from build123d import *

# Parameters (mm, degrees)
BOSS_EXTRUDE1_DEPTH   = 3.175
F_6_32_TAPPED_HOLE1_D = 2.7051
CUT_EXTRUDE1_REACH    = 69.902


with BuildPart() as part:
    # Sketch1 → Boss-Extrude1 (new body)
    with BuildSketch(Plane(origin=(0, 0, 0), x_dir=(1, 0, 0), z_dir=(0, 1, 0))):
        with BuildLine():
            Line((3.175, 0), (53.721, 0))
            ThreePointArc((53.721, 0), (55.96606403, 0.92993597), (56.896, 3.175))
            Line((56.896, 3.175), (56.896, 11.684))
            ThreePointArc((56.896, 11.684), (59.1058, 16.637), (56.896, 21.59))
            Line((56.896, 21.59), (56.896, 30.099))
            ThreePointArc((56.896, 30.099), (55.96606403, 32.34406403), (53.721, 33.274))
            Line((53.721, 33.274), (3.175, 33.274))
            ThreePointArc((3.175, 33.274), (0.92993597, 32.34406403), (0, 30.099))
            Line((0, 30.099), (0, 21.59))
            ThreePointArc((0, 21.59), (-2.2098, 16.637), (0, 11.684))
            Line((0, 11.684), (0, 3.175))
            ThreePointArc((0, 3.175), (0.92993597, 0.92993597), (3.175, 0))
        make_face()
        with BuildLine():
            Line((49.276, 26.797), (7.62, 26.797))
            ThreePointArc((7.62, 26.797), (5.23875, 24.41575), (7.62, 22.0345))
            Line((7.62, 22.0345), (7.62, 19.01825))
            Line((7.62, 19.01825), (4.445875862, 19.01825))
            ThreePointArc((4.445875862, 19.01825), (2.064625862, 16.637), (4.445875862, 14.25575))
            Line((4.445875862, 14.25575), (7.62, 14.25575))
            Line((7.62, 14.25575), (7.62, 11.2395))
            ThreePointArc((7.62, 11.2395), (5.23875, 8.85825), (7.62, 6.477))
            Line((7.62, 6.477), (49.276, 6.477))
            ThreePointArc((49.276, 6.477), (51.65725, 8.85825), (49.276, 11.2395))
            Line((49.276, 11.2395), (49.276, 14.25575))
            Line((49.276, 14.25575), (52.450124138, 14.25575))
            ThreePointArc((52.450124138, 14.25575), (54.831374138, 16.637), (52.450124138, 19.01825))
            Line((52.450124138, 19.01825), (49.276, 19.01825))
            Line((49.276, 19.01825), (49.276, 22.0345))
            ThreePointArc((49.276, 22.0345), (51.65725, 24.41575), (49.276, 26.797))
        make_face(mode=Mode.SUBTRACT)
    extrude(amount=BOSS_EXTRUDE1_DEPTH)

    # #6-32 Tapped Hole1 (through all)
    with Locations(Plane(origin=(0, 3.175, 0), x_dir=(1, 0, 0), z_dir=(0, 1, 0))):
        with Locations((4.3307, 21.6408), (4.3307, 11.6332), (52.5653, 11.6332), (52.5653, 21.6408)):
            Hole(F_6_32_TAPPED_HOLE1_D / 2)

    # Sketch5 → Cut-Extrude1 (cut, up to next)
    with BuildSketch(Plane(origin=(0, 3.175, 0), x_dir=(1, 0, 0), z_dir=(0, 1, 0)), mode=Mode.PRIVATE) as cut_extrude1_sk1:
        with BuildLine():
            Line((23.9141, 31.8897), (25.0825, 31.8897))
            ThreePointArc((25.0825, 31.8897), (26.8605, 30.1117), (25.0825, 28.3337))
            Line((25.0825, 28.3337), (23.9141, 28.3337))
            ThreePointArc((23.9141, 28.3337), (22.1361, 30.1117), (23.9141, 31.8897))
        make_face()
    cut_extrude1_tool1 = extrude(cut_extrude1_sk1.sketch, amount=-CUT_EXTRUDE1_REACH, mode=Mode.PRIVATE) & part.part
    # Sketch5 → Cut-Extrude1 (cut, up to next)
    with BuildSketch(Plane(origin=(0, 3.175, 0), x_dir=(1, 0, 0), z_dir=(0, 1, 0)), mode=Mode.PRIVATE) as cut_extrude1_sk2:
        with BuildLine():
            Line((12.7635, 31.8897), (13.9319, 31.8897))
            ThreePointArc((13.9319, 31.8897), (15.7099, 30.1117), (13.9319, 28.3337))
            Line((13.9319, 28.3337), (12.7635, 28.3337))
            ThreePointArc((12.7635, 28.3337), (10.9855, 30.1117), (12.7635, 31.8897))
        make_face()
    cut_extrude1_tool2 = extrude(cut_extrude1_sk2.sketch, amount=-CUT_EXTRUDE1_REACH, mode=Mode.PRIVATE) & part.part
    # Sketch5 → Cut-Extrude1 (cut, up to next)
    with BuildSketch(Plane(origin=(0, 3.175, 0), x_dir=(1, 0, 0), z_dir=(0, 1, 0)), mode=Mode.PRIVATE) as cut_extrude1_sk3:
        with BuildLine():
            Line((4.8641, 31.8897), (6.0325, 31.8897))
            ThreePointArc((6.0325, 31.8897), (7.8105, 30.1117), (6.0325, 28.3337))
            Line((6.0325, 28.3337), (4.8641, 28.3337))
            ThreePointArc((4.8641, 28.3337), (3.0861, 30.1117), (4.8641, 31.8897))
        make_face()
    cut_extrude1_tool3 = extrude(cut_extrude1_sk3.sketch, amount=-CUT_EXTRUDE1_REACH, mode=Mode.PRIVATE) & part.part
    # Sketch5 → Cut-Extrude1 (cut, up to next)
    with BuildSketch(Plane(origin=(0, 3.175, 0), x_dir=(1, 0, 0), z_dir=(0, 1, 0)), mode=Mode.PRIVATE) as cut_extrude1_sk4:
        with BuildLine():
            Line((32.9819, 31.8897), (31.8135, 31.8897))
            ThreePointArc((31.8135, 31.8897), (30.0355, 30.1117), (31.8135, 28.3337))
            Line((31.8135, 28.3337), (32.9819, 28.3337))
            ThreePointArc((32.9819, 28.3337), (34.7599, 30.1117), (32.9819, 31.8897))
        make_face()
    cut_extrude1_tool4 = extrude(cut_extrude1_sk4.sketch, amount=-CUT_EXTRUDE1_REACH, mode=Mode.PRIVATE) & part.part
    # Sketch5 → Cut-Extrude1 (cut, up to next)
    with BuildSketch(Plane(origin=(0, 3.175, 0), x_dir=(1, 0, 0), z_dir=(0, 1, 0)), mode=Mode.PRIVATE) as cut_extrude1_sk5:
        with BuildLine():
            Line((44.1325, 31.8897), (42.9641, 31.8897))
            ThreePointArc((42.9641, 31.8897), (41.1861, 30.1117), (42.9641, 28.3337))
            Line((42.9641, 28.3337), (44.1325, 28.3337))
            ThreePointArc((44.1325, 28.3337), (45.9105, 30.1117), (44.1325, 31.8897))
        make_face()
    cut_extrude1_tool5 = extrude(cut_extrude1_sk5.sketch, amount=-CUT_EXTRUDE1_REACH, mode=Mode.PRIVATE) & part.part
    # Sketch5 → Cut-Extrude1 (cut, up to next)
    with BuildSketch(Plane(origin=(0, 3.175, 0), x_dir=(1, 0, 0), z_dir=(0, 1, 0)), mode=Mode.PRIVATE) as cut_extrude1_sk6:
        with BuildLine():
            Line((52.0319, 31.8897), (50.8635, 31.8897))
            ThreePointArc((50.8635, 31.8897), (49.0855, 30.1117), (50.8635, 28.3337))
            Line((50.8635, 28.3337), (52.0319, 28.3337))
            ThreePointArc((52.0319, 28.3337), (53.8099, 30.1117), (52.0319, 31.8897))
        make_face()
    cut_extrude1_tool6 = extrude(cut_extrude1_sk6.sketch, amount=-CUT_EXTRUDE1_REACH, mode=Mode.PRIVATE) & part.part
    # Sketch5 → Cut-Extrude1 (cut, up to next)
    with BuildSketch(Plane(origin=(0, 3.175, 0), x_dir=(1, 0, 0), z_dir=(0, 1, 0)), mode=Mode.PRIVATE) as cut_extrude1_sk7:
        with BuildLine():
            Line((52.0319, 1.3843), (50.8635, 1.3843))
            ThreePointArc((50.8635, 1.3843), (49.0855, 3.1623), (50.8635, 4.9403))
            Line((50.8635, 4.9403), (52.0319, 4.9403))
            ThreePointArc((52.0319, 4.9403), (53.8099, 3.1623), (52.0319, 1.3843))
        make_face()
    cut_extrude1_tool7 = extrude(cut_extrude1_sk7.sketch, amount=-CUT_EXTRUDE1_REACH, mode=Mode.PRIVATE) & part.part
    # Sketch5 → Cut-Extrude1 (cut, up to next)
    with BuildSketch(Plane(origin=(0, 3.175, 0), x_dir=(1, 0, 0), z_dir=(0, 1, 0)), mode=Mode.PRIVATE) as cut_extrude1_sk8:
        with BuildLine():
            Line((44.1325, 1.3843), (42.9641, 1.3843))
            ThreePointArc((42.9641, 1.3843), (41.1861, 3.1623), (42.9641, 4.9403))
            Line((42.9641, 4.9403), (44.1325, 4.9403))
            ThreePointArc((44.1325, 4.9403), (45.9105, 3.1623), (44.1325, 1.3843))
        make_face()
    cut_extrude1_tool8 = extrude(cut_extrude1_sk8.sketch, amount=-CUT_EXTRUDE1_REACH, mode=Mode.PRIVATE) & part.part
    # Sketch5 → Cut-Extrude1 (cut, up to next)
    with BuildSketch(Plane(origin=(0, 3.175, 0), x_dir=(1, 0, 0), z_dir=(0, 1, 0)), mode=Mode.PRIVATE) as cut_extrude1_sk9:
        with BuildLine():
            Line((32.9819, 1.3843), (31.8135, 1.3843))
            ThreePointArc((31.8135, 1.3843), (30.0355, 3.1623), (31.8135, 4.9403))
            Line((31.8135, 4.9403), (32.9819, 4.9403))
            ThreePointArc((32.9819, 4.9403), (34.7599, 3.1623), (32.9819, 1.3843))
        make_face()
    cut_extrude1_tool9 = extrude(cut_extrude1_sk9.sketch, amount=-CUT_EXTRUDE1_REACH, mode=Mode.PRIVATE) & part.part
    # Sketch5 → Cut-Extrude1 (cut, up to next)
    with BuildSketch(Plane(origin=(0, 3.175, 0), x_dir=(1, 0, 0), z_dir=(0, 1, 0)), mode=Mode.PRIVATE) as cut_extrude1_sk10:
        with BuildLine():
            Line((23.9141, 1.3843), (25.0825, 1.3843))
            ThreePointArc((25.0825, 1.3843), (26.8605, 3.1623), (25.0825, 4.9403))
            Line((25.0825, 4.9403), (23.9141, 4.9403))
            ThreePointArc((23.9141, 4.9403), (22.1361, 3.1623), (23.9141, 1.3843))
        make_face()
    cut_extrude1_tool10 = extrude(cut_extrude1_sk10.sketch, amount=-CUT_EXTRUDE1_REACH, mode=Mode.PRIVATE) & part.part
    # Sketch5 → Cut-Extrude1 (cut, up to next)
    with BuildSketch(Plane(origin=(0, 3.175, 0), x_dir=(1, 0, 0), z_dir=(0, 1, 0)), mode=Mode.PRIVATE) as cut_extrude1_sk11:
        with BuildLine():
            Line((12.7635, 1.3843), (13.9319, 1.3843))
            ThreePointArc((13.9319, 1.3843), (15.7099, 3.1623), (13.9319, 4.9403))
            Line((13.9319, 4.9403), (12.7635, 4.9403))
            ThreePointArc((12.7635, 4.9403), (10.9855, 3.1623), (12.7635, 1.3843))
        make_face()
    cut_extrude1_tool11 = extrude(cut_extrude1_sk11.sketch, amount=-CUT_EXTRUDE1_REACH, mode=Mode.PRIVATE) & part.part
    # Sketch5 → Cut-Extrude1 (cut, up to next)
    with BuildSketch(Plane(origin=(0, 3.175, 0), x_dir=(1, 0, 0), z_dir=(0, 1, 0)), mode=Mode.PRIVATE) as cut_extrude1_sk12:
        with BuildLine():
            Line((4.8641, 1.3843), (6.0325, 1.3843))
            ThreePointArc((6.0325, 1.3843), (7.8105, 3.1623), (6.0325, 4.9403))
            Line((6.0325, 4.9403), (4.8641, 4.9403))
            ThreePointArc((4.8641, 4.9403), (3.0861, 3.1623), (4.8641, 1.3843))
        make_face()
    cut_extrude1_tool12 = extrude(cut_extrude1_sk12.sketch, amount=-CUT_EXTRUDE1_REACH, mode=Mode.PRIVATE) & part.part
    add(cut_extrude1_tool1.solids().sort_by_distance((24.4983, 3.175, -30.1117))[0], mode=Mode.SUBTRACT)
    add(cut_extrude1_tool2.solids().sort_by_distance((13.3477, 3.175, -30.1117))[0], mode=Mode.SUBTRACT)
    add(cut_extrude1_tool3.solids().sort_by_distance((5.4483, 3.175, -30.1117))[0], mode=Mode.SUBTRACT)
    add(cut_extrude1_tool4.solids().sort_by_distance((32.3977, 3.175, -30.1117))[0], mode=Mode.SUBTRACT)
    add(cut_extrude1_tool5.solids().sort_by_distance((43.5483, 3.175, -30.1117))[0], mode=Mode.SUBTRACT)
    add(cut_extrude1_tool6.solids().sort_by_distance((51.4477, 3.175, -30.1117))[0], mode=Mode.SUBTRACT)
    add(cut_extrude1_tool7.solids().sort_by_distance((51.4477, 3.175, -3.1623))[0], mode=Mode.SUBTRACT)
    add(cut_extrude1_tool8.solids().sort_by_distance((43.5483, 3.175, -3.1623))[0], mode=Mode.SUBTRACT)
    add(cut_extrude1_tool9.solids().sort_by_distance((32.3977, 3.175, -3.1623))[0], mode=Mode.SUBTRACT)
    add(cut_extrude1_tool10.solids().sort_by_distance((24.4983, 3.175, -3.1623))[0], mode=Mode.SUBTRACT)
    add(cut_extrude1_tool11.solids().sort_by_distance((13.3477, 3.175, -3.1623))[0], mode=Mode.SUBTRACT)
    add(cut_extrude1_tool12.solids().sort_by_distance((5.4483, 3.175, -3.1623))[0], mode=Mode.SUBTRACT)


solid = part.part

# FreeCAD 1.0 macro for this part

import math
import FreeCAD as App
import Part
import Sketcher
from FreeCAD import Vector
Q = App.Units.Quantity

doc = App.newDocument("Part")
body = doc.addObject("PartDesign::Body", "Body")

# Sketch on XZ plane
sketch1 = body.newObject("Sketcher::SketchObject", "Sketch")
sketch1.AttachmentSupport = (doc.getObject("XZ_Plane"), [""])
sketch1.MapMode = "FlatFace"
sketch1.addGeometry(Part.LineSegment(Vector(3.2, 0, 0), Vector(53.7, 0, 0)), False)
sketch1.addGeometry(Part.ArcOfCircle(Part.Circle(Vector(53.7, -3.2, 0), Vector(0, 0, 1), 3.2), math.radians(0), math.radians(90)), False)
sketch1.addGeometry(Part.LineSegment(Vector(56.9, -3.2, 0), Vector(56.9, -11.7, 0)), False)
sketch1.addGeometry(Part.ArcOfCircle(Part.Circle(Vector(52.5, -16.6, 0), Vector(0, 0, 1), 6.7), math.radians(-48), math.radians(48)), False)
sketch1.addGeometry(Part.LineSegment(Vector(56.9, -21.6, 0), Vector(56.9, -30.1, 0)), False)
sketch1.addGeometry(Part.ArcOfCircle(Part.Circle(Vector(53.7, -30.1, 0), Vector(0, 0, 1), 3.2), math.radians(-90), math.radians(0)), False)
sketch1.addGeometry(Part.LineSegment(Vector(53.7, -33.3, 0), Vector(3.2, -33.3, 0)), False)
sketch1.addGeometry(Part.ArcOfCircle(Part.Circle(Vector(3.2, -30.1, 0), Vector(0, 0, 1), 3.2), math.radians(-180), math.radians(-90)), False)
sketch1.addGeometry(Part.LineSegment(Vector(0, -30.1, 0), Vector(0, -21.6, 0)), False)
sketch1.addGeometry(Part.ArcOfCircle(Part.Circle(Vector(4.4, -16.6, 0), Vector(0, 0, 1), 6.7), math.radians(132), math.radians(228)), False)
sketch1.addGeometry(Part.LineSegment(Vector(0, -11.7, 0), Vector(0, -3.2, 0)), False)
sketch1.addGeometry(Part.ArcOfCircle(Part.Circle(Vector(3.2, -3.2, 0), Vector(0, 0, 1), 3.2), math.radians(90), math.radians(180)), False)
sketch1.addGeometry(Part.LineSegment(Vector(7.6, -26.8, 0), Vector(49.3, -26.8, 0)), False)
sketch1.addGeometry(Part.ArcOfCircle(Part.Circle(Vector(49.3, -24.4, 0), Vector(0, 0, 1), 2.4), math.radians(-90), math.radians(90)), False)
sketch1.addGeometry(Part.LineSegment(Vector(49.3, -22, 0), Vector(49.3, -19, 0)), False)
sketch1.addGeometry(Part.LineSegment(Vector(49.3, -19, 0), Vector(52.5, -19, 0)), False)
sketch1.addGeometry(Part.ArcOfCircle(Part.Circle(Vector(52.5, -16.6, 0), Vector(0, 0, 1), 2.4), math.radians(-90), math.radians(90)), False)
sketch1.addGeometry(Part.LineSegment(Vector(52.5, -14.3, 0), Vector(49.3, -14.3, 0)), False)
sketch1.addGeometry(Part.LineSegment(Vector(49.3, -14.3, 0), Vector(49.3, -11.2, 0)), False)
sketch1.addGeometry(Part.ArcOfCircle(Part.Circle(Vector(49.3, -8.9, 0), Vector(0, 0, 1), 2.4), math.radians(-90), math.radians(90)), False)
sketch1.addGeometry(Part.LineSegment(Vector(49.3, -6.5, 0), Vector(7.6, -6.5, 0)), False)
sketch1.addGeometry(Part.ArcOfCircle(Part.Circle(Vector(7.6, -8.9, 0), Vector(0, 0, 1), 2.4), math.radians(90), math.radians(270)), False)
sketch1.addGeometry(Part.LineSegment(Vector(7.6, -11.2, 0), Vector(7.6, -14.3, 0)), False)
sketch1.addGeometry(Part.LineSegment(Vector(7.6, -14.3, 0), Vector(4.4, -14.3, 0)), False)
sketch1.addGeometry(Part.ArcOfCircle(Part.Circle(Vector(4.4, -16.6, 0), Vector(0, 0, 1), 2.4), math.radians(90), math.radians(270)), False)
sketch1.addGeometry(Part.LineSegment(Vector(4.4, -19, 0), Vector(7.6, -19, 0)), False)
sketch1.addGeometry(Part.LineSegment(Vector(7.6, -19, 0), Vector(7.6, -22, 0)), False)
sketch1.addGeometry(Part.ArcOfCircle(Part.Circle(Vector(7.6, -24.4, 0), Vector(0, 0, 1), 2.4), math.radians(90), math.radians(270)), False)
sketch1.addConstraint(Sketcher.Constraint("Tangent", 0, 2, 1, 2))
sketch1.addConstraint(Sketcher.Constraint("Tangent", 1, 1, 2, 1))
sketch1.addConstraint(Sketcher.Constraint("Coincident", 2, 2, 3, 2))
sketch1.addConstraint(Sketcher.Constraint("Coincident", 3, 1, 4, 1))
sketch1.addConstraint(Sketcher.Constraint("Tangent", 4, 2, 5, 2))
sketch1.addConstraint(Sketcher.Constraint("Tangent", 5, 1, 6, 1))
sketch1.addConstraint(Sketcher.Constraint("Tangent", 6, 2, 7, 2))
sketch1.addConstraint(Sketcher.Constraint("Tangent", 7, 1, 8, 1))
sketch1.addConstraint(Sketcher.Constraint("Coincident", 8, 2, 9, 2))
sketch1.addConstraint(Sketcher.Constraint("Coincident", 9, 1, 10, 1))
sketch1.addConstraint(Sketcher.Constraint("Tangent", 10, 2, 11, 2))
sketch1.addConstraint(Sketcher.Constraint("Tangent", 11, 1, 0, 1))
sketch1.addConstraint(Sketcher.Constraint("Tangent", 12, 2, 13, 1))
sketch1.addConstraint(Sketcher.Constraint("Coincident", 13, 2, 14, 1))
sketch1.addConstraint(Sketcher.Constraint("Coincident", 14, 2, 15, 1))
sketch1.addConstraint(Sketcher.Constraint("Tangent", 15, 2, 16, 1))
sketch1.addConstraint(Sketcher.Constraint("Tangent", 16, 2, 17, 1))
sketch1.addConstraint(Sketcher.Constraint("Coincident", 17, 2, 18, 1))
sketch1.addConstraint(Sketcher.Constraint("Coincident", 18, 2, 19, 1))
sketch1.addConstraint(Sketcher.Constraint("Tangent", 19, 2, 20, 1))
sketch1.addConstraint(Sketcher.Constraint("Tangent", 20, 2, 21, 1))
sketch1.addConstraint(Sketcher.Constraint("Coincident", 21, 2, 22, 1))
sketch1.addConstraint(Sketcher.Constraint("Coincident", 22, 2, 23, 1))
sketch1.addConstraint(Sketcher.Constraint("Tangent", 23, 2, 24, 1))
sketch1.addConstraint(Sketcher.Constraint("Tangent", 24, 2, 25, 1))
sketch1.addConstraint(Sketcher.Constraint("Coincident", 25, 2, 26, 1))
sketch1.addConstraint(Sketcher.Constraint("Coincident", 26, 2, 27, 1))
sketch1.addConstraint(Sketcher.Constraint("Tangent", 27, 2, 12, 1))
sketch1.addConstraint(Sketcher.Constraint("Horizontal", 0))
sketch1.addConstraint(Sketcher.Constraint("Vertical", 2))
sketch1.addConstraint(Sketcher.Constraint("Vertical", 4))
sketch1.addConstraint(Sketcher.Constraint("Horizontal", 6))
sketch1.addConstraint(Sketcher.Constraint("Vertical", 8))
sketch1.addConstraint(Sketcher.Constraint("Vertical", 10))
sketch1.addConstraint(Sketcher.Constraint("Horizontal", 12))
sketch1.addConstraint(Sketcher.Constraint("Vertical", 14))
sketch1.addConstraint(Sketcher.Constraint("Horizontal", 15))
sketch1.addConstraint(Sketcher.Constraint("Horizontal", 17))
sketch1.addConstraint(Sketcher.Constraint("Vertical", 18))
sketch1.addConstraint(Sketcher.Constraint("Horizontal", 20))
sketch1.addConstraint(Sketcher.Constraint("Vertical", 22))
sketch1.addConstraint(Sketcher.Constraint("Horizontal", 23))
sketch1.addConstraint(Sketcher.Constraint("Horizontal", 25))
sketch1.addConstraint(Sketcher.Constraint("Vertical", 26))
sketch1.addConstraint(Sketcher.Constraint("Coincident", 16, 3, 3, 3))
sketch1.addConstraint(Sketcher.Constraint("Coincident", 24, 3, 9, 3))
sketch1.addConstraint(Sketcher.Constraint("Equal", 1, 5))
sketch1.addConstraint(Sketcher.Constraint("Equal", 5, 7))
sketch1.addConstraint(Sketcher.Constraint("Equal", 3, 9))
sketch1.addConstraint(Sketcher.Constraint("Equal", 7, 11))
sketch1.addConstraint(Sketcher.Constraint("Equal", 13, 16))
sketch1.addConstraint(Sketcher.Constraint("Equal", 16, 19))
sketch1.addConstraint(Sketcher.Constraint("Equal", 19, 21))
sketch1.addConstraint(Sketcher.Constraint("Equal", 21, 24))
sketch1.addConstraint(Sketcher.Constraint("Equal", 24, 27))
sketch1.addConstraint(Sketcher.Constraint("PointOnObject", 0, 2, -1))
sketch1.addConstraint(Sketcher.Constraint("PointOnObject", 7, 1, -2))
sketch1.addConstraint(Sketcher.Constraint("PointOnObject", 9, 1, -2))
sketch1.addConstraint(Sketcher.Constraint("Horizontal", 3, 3, 9, 3))
sketch1.addConstraint(Sketcher.Constraint("Horizontal", 3, 1, 8, 2))
sketch1.addConstraint(Sketcher.Constraint("Horizontal", 2, 2, 9, 1))
sketch1.addConstraint(Sketcher.Constraint("Vertical", 13, 3, 19, 3))
sketch1.addConstraint(Sketcher.Constraint("Vertical", 21, 3, 27, 3))
sketch1.addConstraint(Sketcher.Constraint("Vertical", 12, 2, 13, 2))
sketch1.addConstraint(Sketcher.Constraint("Vertical", 14, 2, 17, 2))
sketch1.addConstraint(Sketcher.Constraint("Vertical", 20, 2, 21, 2))
sketch1.addConstraint(Sketcher.Constraint("Vertical", 22, 2, 25, 2))
sketch1.addConstraint(Sketcher.Constraint("Equal", 17, 23))
sketch1.addConstraint(Sketcher.Constraint("Equal", 2, 4))
sketch1.addConstraint(Sketcher.Constraint("Equal", 14, 18))
sketch1.addConstraint(Sketcher.Constraint("Radius", 1, Q("0.125 in")))
sketch1.addConstraint(Sketcher.Constraint("Radius", 13, Q("0.09375 in")))
sketch1.addConstraint(Sketcher.Constraint("DistanceX", 0, 1, 0, 2, Q("1.99 in")))
sketch1.addConstraint(Sketcher.Constraint("DistanceX", 12, 1, 12, 2, Q("1.64 in")))
sketch1.addConstraint(Sketcher.Constraint("DistanceY", 2, 2, 2, 1, Q("0.335 in")))
sketch1.addConstraint(Sketcher.Constraint("DistanceY", 3, 1, -1, 1, Q("0.85 in")))
sketch1.addConstraint(Sketcher.Constraint("DistanceY", 5, 3, 12, 2, Q("0.13 in")))
sketch1.addConstraint(Sketcher.Constraint("Radius", 3, 6.655676))
pad1 = body.newObject("PartDesign::Pad", "Pad")
pad1.Profile = sketch1
pad1.Length = Q("0.125 in")
pad1.Reversed = True

# Sketch on XZ plane
sketch2 = body.newObject("Sketcher::SketchObject", "Sketch001")
sketch2.AttachmentSupport = (doc.getObject("XZ_Plane"), [""])
sketch2.MapMode = "FlatFace"
sketch2.AttachmentOffset = App.Placement(Vector(0, 0, -0.125 * 25.4), App.Rotation())
sketch2.addGeometry(Part.Circle(Vector(4.3, -21.6, 0), Vector(0, 0, 1), 1.4), False)
sketch2.addGeometry(Part.Circle(Vector(4.3, -11.6, 0), Vector(0, 0, 1), 1.4), False)
sketch2.addGeometry(Part.Circle(Vector(52.6, -11.6, 0), Vector(0, 0, 1), 1.4), False)
sketch2.addGeometry(Part.Circle(Vector(52.6, -21.6, 0), Vector(0, 0, 1), 1.4), False)
sketch2.addConstraint(Sketcher.Constraint("Equal", 0, 1))
sketch2.addConstraint(Sketcher.Constraint("Equal", 1, 2))
sketch2.addConstraint(Sketcher.Constraint("Equal", 2, 3))
sketch2.addConstraint(Sketcher.Constraint("Horizontal", 1, 3, 2, 3))
sketch2.addConstraint(Sketcher.Constraint("Horizontal", 0, 3, 3, 3))
sketch2.addConstraint(Sketcher.Constraint("Vertical", 0, 3, 1, 3))
sketch2.addConstraint(Sketcher.Constraint("Vertical", 2, 3, 3, 3))
sketch2.addConstraint(Sketcher.Constraint("Diameter", 0, Q("0.1065 in")))
sketch2.addConstraint(Sketcher.Constraint("DistanceY", 0, 3, -1, 1, Q("0.852 in")))
sketch2.addConstraint(Sketcher.Constraint("DistanceY", 1, 3, -1, 1, Q("0.458 in")))
sketch2.addConstraint(Sketcher.Constraint("DistanceX", 1, 3, 2, 3, Q("1.899 in")))
sketch2.addConstraint(Sketcher.Constraint("DistanceX", -1, 1, 0, 3, Q("0.1705 in")))
doc.recompute()
hole = body.newObject("PartDesign::Hole", "Hole")
hole.Profile = sketch2
hole.ThreadType = "None"
hole.Diameter = Q("0.1065 in")
hole.DepthType = "ThroughAll"
hole.Reversed = True

# Sketch on XZ plane
sketch3 = body.newObject("Sketcher::SketchObject", "Sketch002")
sketch3.AttachmentSupport = (doc.getObject("XZ_Plane"), [""])
sketch3.MapMode = "FlatFace"
sketch3.AttachmentOffset = App.Placement(Vector(0, 0, -0.125 * 25.4), App.Rotation())
sketch3.addGeometry(Part.LineSegment(Vector(25.1, -31.9, 0), Vector(23.9, -31.9, 0)), False)
sketch3.addGeometry(Part.ArcOfCircle(Part.Circle(Vector(23.9, -30.1, 0), Vector(0, 0, 1), 1.8), math.radians(90), math.radians(270)), False)
sketch3.addGeometry(Part.LineSegment(Vector(23.9, -28.3, 0), Vector(25.1, -28.3, 0)), False)
sketch3.addGeometry(Part.ArcOfCircle(Part.Circle(Vector(25.1, -30.1, 0), Vector(0, 0, 1), 1.8), math.radians(-90), math.radians(90)), False)
sketch3.addConstraint(Sketcher.Constraint("Tangent", 0, 2, 1, 2))
sketch3.addConstraint(Sketcher.Constraint("Tangent", 1, 1, 2, 1))
sketch3.addConstraint(Sketcher.Constraint("Tangent", 2, 2, 3, 2))
sketch3.addConstraint(Sketcher.Constraint("Tangent", 3, 1, 0, 1))
sketch3.addConstraint(Sketcher.Constraint("Horizontal", 0))
sketch3.addConstraint(Sketcher.Constraint("Horizontal", 2))
sketch3.addConstraint(Sketcher.Constraint("Radius", 1, Q("0.07 in")))
sketch3.addConstraint(Sketcher.Constraint("DistanceX", 0, 2, 0, 1, Q("0.046 in")))
sketch3.addConstraint(Sketcher.Constraint("DistanceX", -1, 1, 1, 3, Q("0.9415 in")))
sketch3.addConstraint(Sketcher.Constraint("DistanceY", 1, 3, -1, 1, Q("1.1855 in")))
pocket1 = body.newObject("PartDesign::Pocket", "Pocket")
pocket1.Profile = sketch3
pocket1.Type = "UpToFirst"
pocket1.Reversed = True

# Sketch on XZ plane
sketch4 = body.newObject("Sketcher::SketchObject", "Sketch003")
sketch4.AttachmentSupport = (doc.getObject("XZ_Plane"), [""])
sketch4.MapMode = "FlatFace"
sketch4.AttachmentOffset = App.Placement(Vector(0, 0, -0.125 * 25.4), App.Rotation())
sketch4.addGeometry(Part.LineSegment(Vector(13.9, -31.9, 0), Vector(12.8, -31.9, 0)), False)
sketch4.addGeometry(Part.ArcOfCircle(Part.Circle(Vector(12.8, -30.1, 0), Vector(0, 0, 1), 1.8), math.radians(90), math.radians(270)), False)
sketch4.addGeometry(Part.LineSegment(Vector(12.8, -28.3, 0), Vector(13.9, -28.3, 0)), False)
sketch4.addGeometry(Part.ArcOfCircle(Part.Circle(Vector(13.9, -30.1, 0), Vector(0, 0, 1), 1.8), math.radians(-90), math.radians(90)), False)
sketch4.addConstraint(Sketcher.Constraint("Tangent", 0, 2, 1, 2))
sketch4.addConstraint(Sketcher.Constraint("Tangent", 1, 1, 2, 1))
sketch4.addConstraint(Sketcher.Constraint("Tangent", 2, 2, 3, 2))
sketch4.addConstraint(Sketcher.Constraint("Tangent", 3, 1, 0, 1))
sketch4.addConstraint(Sketcher.Constraint("Horizontal", 0))
sketch4.addConstraint(Sketcher.Constraint("Horizontal", 2))
sketch4.addConstraint(Sketcher.Constraint("Radius", 1, Q("0.07 in")))
sketch4.addConstraint(Sketcher.Constraint("DistanceX", 0, 2, 0, 1, Q("0.046 in")))
sketch4.addConstraint(Sketcher.Constraint("DistanceX", -1, 1, 1, 3, Q("0.5025 in")))
sketch4.addConstraint(Sketcher.Constraint("DistanceY", 1, 3, -1, 1, Q("1.1855 in")))
pocket2 = body.newObject("PartDesign::Pocket", "Pocket001")
pocket2.Profile = sketch4
pocket2.Type = "UpToFirst"
pocket2.Reversed = True

# Sketch on XZ plane
sketch5 = body.newObject("Sketcher::SketchObject", "Sketch004")
sketch5.AttachmentSupport = (doc.getObject("XZ_Plane"), [""])
sketch5.MapMode = "FlatFace"
sketch5.AttachmentOffset = App.Placement(Vector(0, 0, -0.125 * 25.4), App.Rotation())
sketch5.addGeometry(Part.LineSegment(Vector(6, -31.9, 0), Vector(4.9, -31.9, 0)), False)
sketch5.addGeometry(Part.ArcOfCircle(Part.Circle(Vector(4.9, -30.1, 0), Vector(0, 0, 1), 1.8), math.radians(90), math.radians(270)), False)
sketch5.addGeometry(Part.LineSegment(Vector(4.9, -28.3, 0), Vector(6, -28.3, 0)), False)
sketch5.addGeometry(Part.ArcOfCircle(Part.Circle(Vector(6, -30.1, 0), Vector(0, 0, 1), 1.8), math.radians(-90), math.radians(90)), False)
sketch5.addConstraint(Sketcher.Constraint("Tangent", 0, 2, 1, 2))
sketch5.addConstraint(Sketcher.Constraint("Tangent", 1, 1, 2, 1))
sketch5.addConstraint(Sketcher.Constraint("Tangent", 2, 2, 3, 2))
sketch5.addConstraint(Sketcher.Constraint("Tangent", 3, 1, 0, 1))
sketch5.addConstraint(Sketcher.Constraint("Horizontal", 0))
sketch5.addConstraint(Sketcher.Constraint("Horizontal", 2))
sketch5.addConstraint(Sketcher.Constraint("Radius", 1, Q("0.07 in")))
sketch5.addConstraint(Sketcher.Constraint("DistanceX", 0, 2, 0, 1, Q("0.046 in")))
sketch5.addConstraint(Sketcher.Constraint("DistanceX", -1, 1, 1, 3, Q("0.1915 in")))
sketch5.addConstraint(Sketcher.Constraint("DistanceY", 1, 3, -1, 1, Q("1.1855 in")))
pocket3 = body.newObject("PartDesign::Pocket", "Pocket002")
pocket3.Profile = sketch5
pocket3.Type = "UpToFirst"
pocket3.Reversed = True

# Sketch on XZ plane
sketch6 = body.newObject("Sketcher::SketchObject", "Sketch005")
sketch6.AttachmentSupport = (doc.getObject("XZ_Plane"), [""])
sketch6.MapMode = "FlatFace"
sketch6.AttachmentOffset = App.Placement(Vector(0, 0, -0.125 * 25.4), App.Rotation())
sketch6.addGeometry(Part.LineSegment(Vector(33, -31.9, 0), Vector(31.8, -31.9, 0)), False)
sketch6.addGeometry(Part.ArcOfCircle(Part.Circle(Vector(31.8, -30.1, 0), Vector(0, 0, 1), 1.8), math.radians(90), math.radians(270)), False)
sketch6.addGeometry(Part.LineSegment(Vector(31.8, -28.3, 0), Vector(33, -28.3, 0)), False)
sketch6.addGeometry(Part.ArcOfCircle(Part.Circle(Vector(33, -30.1, 0), Vector(0, 0, 1), 1.8), math.radians(-90), math.radians(90)), False)
sketch6.addConstraint(Sketcher.Constraint("Tangent", 0, 2, 1, 2))
sketch6.addConstraint(Sketcher.Constraint("Tangent", 1, 1, 2, 1))
sketch6.addConstraint(Sketcher.Constraint("Tangent", 2, 2, 3, 2))
sketch6.addConstraint(Sketcher.Constraint("Tangent", 3, 1, 0, 1))
sketch6.addConstraint(Sketcher.Constraint("Horizontal", 0))
sketch6.addConstraint(Sketcher.Constraint("Horizontal", 2))
sketch6.addConstraint(Sketcher.Constraint("Radius", 1, Q("0.07 in")))
sketch6.addConstraint(Sketcher.Constraint("DistanceX", 0, 2, 0, 1, Q("0.046 in")))
sketch6.addConstraint(Sketcher.Constraint("DistanceX", -1, 1, 1, 3, Q("1.2525 in")))
sketch6.addConstraint(Sketcher.Constraint("DistanceY", 1, 3, -1, 1, Q("1.1855 in")))
pocket4 = body.newObject("PartDesign::Pocket", "Pocket003")
pocket4.Profile = sketch6
pocket4.Type = "UpToFirst"
pocket4.Reversed = True

# Sketch on XZ plane
sketch7 = body.newObject("Sketcher::SketchObject", "Sketch006")
sketch7.AttachmentSupport = (doc.getObject("XZ_Plane"), [""])
sketch7.MapMode = "FlatFace"
sketch7.AttachmentOffset = App.Placement(Vector(0, 0, -0.125 * 25.4), App.Rotation())
sketch7.addGeometry(Part.LineSegment(Vector(44.1, -31.9, 0), Vector(43, -31.9, 0)), False)
sketch7.addGeometry(Part.ArcOfCircle(Part.Circle(Vector(43, -30.1, 0), Vector(0, 0, 1), 1.8), math.radians(90), math.radians(270)), False)
sketch7.addGeometry(Part.LineSegment(Vector(43, -28.3, 0), Vector(44.1, -28.3, 0)), False)
sketch7.addGeometry(Part.ArcOfCircle(Part.Circle(Vector(44.1, -30.1, 0), Vector(0, 0, 1), 1.8), math.radians(-90), math.radians(90)), False)
sketch7.addConstraint(Sketcher.Constraint("Tangent", 0, 2, 1, 2))
sketch7.addConstraint(Sketcher.Constraint("Tangent", 1, 1, 2, 1))
sketch7.addConstraint(Sketcher.Constraint("Tangent", 2, 2, 3, 2))
sketch7.addConstraint(Sketcher.Constraint("Tangent", 3, 1, 0, 1))
sketch7.addConstraint(Sketcher.Constraint("Horizontal", 0))
sketch7.addConstraint(Sketcher.Constraint("Horizontal", 2))
sketch7.addConstraint(Sketcher.Constraint("Radius", 1, Q("0.07 in")))
sketch7.addConstraint(Sketcher.Constraint("DistanceX", 0, 2, 0, 1, Q("0.046 in")))
sketch7.addConstraint(Sketcher.Constraint("DistanceX", -1, 1, 1, 3, Q("1.6915 in")))
sketch7.addConstraint(Sketcher.Constraint("DistanceY", 1, 3, -1, 1, Q("1.1855 in")))
pocket5 = body.newObject("PartDesign::Pocket", "Pocket004")
pocket5.Profile = sketch7
pocket5.Type = "UpToFirst"
pocket5.Reversed = True

# Sketch on XZ plane
sketch8 = body.newObject("Sketcher::SketchObject", "Sketch007")
sketch8.AttachmentSupport = (doc.getObject("XZ_Plane"), [""])
sketch8.MapMode = "FlatFace"
sketch8.AttachmentOffset = App.Placement(Vector(0, 0, -0.125 * 25.4), App.Rotation())
sketch8.addGeometry(Part.LineSegment(Vector(52, -31.9, 0), Vector(50.9, -31.9, 0)), False)
sketch8.addGeometry(Part.ArcOfCircle(Part.Circle(Vector(50.9, -30.1, 0), Vector(0, 0, 1), 1.8), math.radians(90), math.radians(270)), False)
sketch8.addGeometry(Part.LineSegment(Vector(50.9, -28.3, 0), Vector(52, -28.3, 0)), False)
sketch8.addGeometry(Part.ArcOfCircle(Part.Circle(Vector(52, -30.1, 0), Vector(0, 0, 1), 1.8), math.radians(-90), math.radians(90)), False)
sketch8.addConstraint(Sketcher.Constraint("Tangent", 0, 2, 1, 2))
sketch8.addConstraint(Sketcher.Constraint("Tangent", 1, 1, 2, 1))
sketch8.addConstraint(Sketcher.Constraint("Tangent", 2, 2, 3, 2))
sketch8.addConstraint(Sketcher.Constraint("Tangent", 3, 1, 0, 1))
sketch8.addConstraint(Sketcher.Constraint("Horizontal", 0))
sketch8.addConstraint(Sketcher.Constraint("Horizontal", 2))
sketch8.addConstraint(Sketcher.Constraint("Radius", 1, Q("0.07 in")))
sketch8.addConstraint(Sketcher.Constraint("DistanceX", 0, 2, 0, 1, Q("0.046 in")))
sketch8.addConstraint(Sketcher.Constraint("DistanceX", -1, 1, 1, 3, Q("2.0025 in")))
sketch8.addConstraint(Sketcher.Constraint("DistanceY", 1, 3, -1, 1, Q("1.1855 in")))
pocket6 = body.newObject("PartDesign::Pocket", "Pocket005")
pocket6.Profile = sketch8
pocket6.Type = "UpToFirst"
pocket6.Reversed = True

# Sketch on XZ plane
sketch9 = body.newObject("Sketcher::SketchObject", "Sketch008")
sketch9.AttachmentSupport = (doc.getObject("XZ_Plane"), [""])
sketch9.MapMode = "FlatFace"
sketch9.AttachmentOffset = App.Placement(Vector(0, 0, -0.125 * 25.4), App.Rotation())
sketch9.addGeometry(Part.LineSegment(Vector(50.9, -1.4, 0), Vector(52, -1.4, 0)), False)
sketch9.addGeometry(Part.ArcOfCircle(Part.Circle(Vector(52, -3.2, 0), Vector(0, 0, 1), 1.8), math.radians(-90), math.radians(90)), False)
sketch9.addGeometry(Part.LineSegment(Vector(52, -4.9, 0), Vector(50.9, -4.9, 0)), False)
sketch9.addGeometry(Part.ArcOfCircle(Part.Circle(Vector(50.9, -3.2, 0), Vector(0, 0, 1), 1.8), math.radians(90), math.radians(270)), False)
sketch9.addConstraint(Sketcher.Constraint("Tangent", 0, 2, 1, 2))
sketch9.addConstraint(Sketcher.Constraint("Tangent", 1, 1, 2, 1))
sketch9.addConstraint(Sketcher.Constraint("Tangent", 2, 2, 3, 2))
sketch9.addConstraint(Sketcher.Constraint("Tangent", 3, 1, 0, 1))
sketch9.addConstraint(Sketcher.Constraint("Horizontal", 0))
sketch9.addConstraint(Sketcher.Constraint("Horizontal", 2))
sketch9.addConstraint(Sketcher.Constraint("Radius", 1, Q("0.07 in")))
sketch9.addConstraint(Sketcher.Constraint("DistanceX", 0, 1, 0, 2, Q("0.046 in")))
sketch9.addConstraint(Sketcher.Constraint("DistanceX", -1, 1, 1, 3, Q("2.0485 in")))
sketch9.addConstraint(Sketcher.Constraint("DistanceY", 1, 3, -1, 1, Q("0.1245 in")))
pocket7 = body.newObject("PartDesign::Pocket", "Pocket006")
pocket7.Profile = sketch9
pocket7.Type = "UpToFirst"
pocket7.Reversed = True

# Sketch on XZ plane
sketch10 = body.newObject("Sketcher::SketchObject", "Sketch009")
sketch10.AttachmentSupport = (doc.getObject("XZ_Plane"), [""])
sketch10.MapMode = "FlatFace"
sketch10.AttachmentOffset = App.Placement(Vector(0, 0, -0.125 * 25.4), App.Rotation())
sketch10.addGeometry(Part.LineSegment(Vector(43, -1.4, 0), Vector(44.1, -1.4, 0)), False)
sketch10.addGeometry(Part.ArcOfCircle(Part.Circle(Vector(44.1, -3.2, 0), Vector(0, 0, 1), 1.8), math.radians(-90), math.radians(90)), False)
sketch10.addGeometry(Part.LineSegment(Vector(44.1, -4.9, 0), Vector(43, -4.9, 0)), False)
sketch10.addGeometry(Part.ArcOfCircle(Part.Circle(Vector(43, -3.2, 0), Vector(0, 0, 1), 1.8), math.radians(90), math.radians(270)), False)
sketch10.addConstraint(Sketcher.Constraint("Tangent", 0, 2, 1, 2))
sketch10.addConstraint(Sketcher.Constraint("Tangent", 1, 1, 2, 1))
sketch10.addConstraint(Sketcher.Constraint("Tangent", 2, 2, 3, 2))
sketch10.addConstraint(Sketcher.Constraint("Tangent", 3, 1, 0, 1))
sketch10.addConstraint(Sketcher.Constraint("Horizontal", 0))
sketch10.addConstraint(Sketcher.Constraint("Horizontal", 2))
sketch10.addConstraint(Sketcher.Constraint("Radius", 1, Q("0.07 in")))
sketch10.addConstraint(Sketcher.Constraint("DistanceX", 0, 1, 0, 2, Q("0.046 in")))
sketch10.addConstraint(Sketcher.Constraint("DistanceX", -1, 1, 1, 3, Q("1.7375 in")))
sketch10.addConstraint(Sketcher.Constraint("DistanceY", 1, 3, -1, 1, Q("0.1245 in")))
pocket8 = body.newObject("PartDesign::Pocket", "Pocket007")
pocket8.Profile = sketch10
pocket8.Type = "UpToFirst"
pocket8.Reversed = True

# Sketch on XZ plane
sketch11 = body.newObject("Sketcher::SketchObject", "Sketch010")
sketch11.AttachmentSupport = (doc.getObject("XZ_Plane"), [""])
sketch11.MapMode = "FlatFace"
sketch11.AttachmentOffset = App.Placement(Vector(0, 0, -0.125 * 25.4), App.Rotation())
sketch11.addGeometry(Part.LineSegment(Vector(31.8, -1.4, 0), Vector(33, -1.4, 0)), False)
sketch11.addGeometry(Part.ArcOfCircle(Part.Circle(Vector(33, -3.2, 0), Vector(0, 0, 1), 1.8), math.radians(-90), math.radians(90)), False)
sketch11.addGeometry(Part.LineSegment(Vector(33, -4.9, 0), Vector(31.8, -4.9, 0)), False)
sketch11.addGeometry(Part.ArcOfCircle(Part.Circle(Vector(31.8, -3.2, 0), Vector(0, 0, 1), 1.8), math.radians(90), math.radians(270)), False)
sketch11.addConstraint(Sketcher.Constraint("Tangent", 0, 2, 1, 2))
sketch11.addConstraint(Sketcher.Constraint("Tangent", 1, 1, 2, 1))
sketch11.addConstraint(Sketcher.Constraint("Tangent", 2, 2, 3, 2))
sketch11.addConstraint(Sketcher.Constraint("Tangent", 3, 1, 0, 1))
sketch11.addConstraint(Sketcher.Constraint("Horizontal", 0))
sketch11.addConstraint(Sketcher.Constraint("Horizontal", 2))
sketch11.addConstraint(Sketcher.Constraint("Radius", 1, Q("0.07 in")))
sketch11.addConstraint(Sketcher.Constraint("DistanceX", 0, 1, 0, 2, Q("0.046 in")))
sketch11.addConstraint(Sketcher.Constraint("DistanceX", -1, 1, 1, 3, Q("1.2985 in")))
sketch11.addConstraint(Sketcher.Constraint("DistanceY", 1, 3, -1, 1, Q("0.1245 in")))
pocket9 = body.newObject("PartDesign::Pocket", "Pocket008")
pocket9.Profile = sketch11
pocket9.Type = "UpToFirst"
pocket9.Reversed = True

# Sketch on XZ plane
sketch12 = body.newObject("Sketcher::SketchObject", "Sketch011")
sketch12.AttachmentSupport = (doc.getObject("XZ_Plane"), [""])
sketch12.MapMode = "FlatFace"
sketch12.AttachmentOffset = App.Placement(Vector(0, 0, -0.125 * 25.4), App.Rotation())
sketch12.addGeometry(Part.LineSegment(Vector(23.9, -1.4, 0), Vector(25.1, -1.4, 0)), False)
sketch12.addGeometry(Part.ArcOfCircle(Part.Circle(Vector(25.1, -3.2, 0), Vector(0, 0, 1), 1.8), math.radians(-90), math.radians(90)), False)
sketch12.addGeometry(Part.LineSegment(Vector(25.1, -4.9, 0), Vector(23.9, -4.9, 0)), False)
sketch12.addGeometry(Part.ArcOfCircle(Part.Circle(Vector(23.9, -3.2, 0), Vector(0, 0, 1), 1.8), math.radians(90), math.radians(270)), False)
sketch12.addConstraint(Sketcher.Constraint("Tangent", 0, 2, 1, 2))
sketch12.addConstraint(Sketcher.Constraint("Tangent", 1, 1, 2, 1))
sketch12.addConstraint(Sketcher.Constraint("Tangent", 2, 2, 3, 2))
sketch12.addConstraint(Sketcher.Constraint("Tangent", 3, 1, 0, 1))
sketch12.addConstraint(Sketcher.Constraint("Horizontal", 0))
sketch12.addConstraint(Sketcher.Constraint("Horizontal", 2))
sketch12.addConstraint(Sketcher.Constraint("Radius", 1, Q("0.07 in")))
sketch12.addConstraint(Sketcher.Constraint("DistanceX", 0, 1, 0, 2, Q("0.046 in")))
sketch12.addConstraint(Sketcher.Constraint("DistanceX", -1, 1, 1, 3, Q("0.9875 in")))
sketch12.addConstraint(Sketcher.Constraint("DistanceY", 1, 3, -1, 1, Q("0.1245 in")))
pocket10 = body.newObject("PartDesign::Pocket", "Pocket009")
pocket10.Profile = sketch12
pocket10.Type = "UpToFirst"
pocket10.Reversed = True

# Sketch on XZ plane
sketch13 = body.newObject("Sketcher::SketchObject", "Sketch012")
sketch13.AttachmentSupport = (doc.getObject("XZ_Plane"), [""])
sketch13.MapMode = "FlatFace"
sketch13.AttachmentOffset = App.Placement(Vector(0, 0, -0.125 * 25.4), App.Rotation())
sketch13.addGeometry(Part.LineSegment(Vector(12.8, -1.4, 0), Vector(13.9, -1.4, 0)), False)
sketch13.addGeometry(Part.ArcOfCircle(Part.Circle(Vector(13.9, -3.2, 0), Vector(0, 0, 1), 1.8), math.radians(-90), math.radians(90)), False)
sketch13.addGeometry(Part.LineSegment(Vector(13.9, -4.9, 0), Vector(12.8, -4.9, 0)), False)
sketch13.addGeometry(Part.ArcOfCircle(Part.Circle(Vector(12.8, -3.2, 0), Vector(0, 0, 1), 1.8), math.radians(90), math.radians(270)), False)
sketch13.addConstraint(Sketcher.Constraint("Tangent", 0, 2, 1, 2))
sketch13.addConstraint(Sketcher.Constraint("Tangent", 1, 1, 2, 1))
sketch13.addConstraint(Sketcher.Constraint("Tangent", 2, 2, 3, 2))
sketch13.addConstraint(Sketcher.Constraint("Tangent", 3, 1, 0, 1))
sketch13.addConstraint(Sketcher.Constraint("Horizontal", 0))
sketch13.addConstraint(Sketcher.Constraint("Horizontal", 2))
sketch13.addConstraint(Sketcher.Constraint("Radius", 1, Q("0.07 in")))
sketch13.addConstraint(Sketcher.Constraint("DistanceX", 0, 1, 0, 2, Q("0.046 in")))
sketch13.addConstraint(Sketcher.Constraint("DistanceX", -1, 1, 1, 3, Q("0.5485 in")))
sketch13.addConstraint(Sketcher.Constraint("DistanceY", 1, 3, -1, 1, Q("0.1245 in")))
pocket11 = body.newObject("PartDesign::Pocket", "Pocket010")
pocket11.Profile = sketch13
pocket11.Type = "UpToFirst"
pocket11.Reversed = True

# Sketch on XZ plane
sketch14 = body.newObject("Sketcher::SketchObject", "Sketch013")
sketch14.AttachmentSupport = (doc.getObject("XZ_Plane"), [""])
sketch14.MapMode = "FlatFace"
sketch14.AttachmentOffset = App.Placement(Vector(0, 0, -0.125 * 25.4), App.Rotation())
sketch14.addGeometry(Part.LineSegment(Vector(4.9, -1.4, 0), Vector(6, -1.4, 0)), False)
sketch14.addGeometry(Part.ArcOfCircle(Part.Circle(Vector(6, -3.2, 0), Vector(0, 0, 1), 1.8), math.radians(-90), math.radians(90)), False)
sketch14.addGeometry(Part.LineSegment(Vector(6, -4.9, 0), Vector(4.9, -4.9, 0)), False)
sketch14.addGeometry(Part.ArcOfCircle(Part.Circle(Vector(4.9, -3.2, 0), Vector(0, 0, 1), 1.8), math.radians(90), math.radians(270)), False)
sketch14.addConstraint(Sketcher.Constraint("Tangent", 0, 2, 1, 2))
sketch14.addConstraint(Sketcher.Constraint("Tangent", 1, 1, 2, 1))
sketch14.addConstraint(Sketcher.Constraint("Tangent", 2, 2, 3, 2))
sketch14.addConstraint(Sketcher.Constraint("Tangent", 3, 1, 0, 1))
sketch14.addConstraint(Sketcher.Constraint("Horizontal", 0))
sketch14.addConstraint(Sketcher.Constraint("Horizontal", 2))
sketch14.addConstraint(Sketcher.Constraint("Radius", 1, Q("0.07 in")))
sketch14.addConstraint(Sketcher.Constraint("DistanceX", 0, 1, 0, 2, Q("0.046 in")))
sketch14.addConstraint(Sketcher.Constraint("DistanceX", -1, 1, 1, 3, Q("0.2375 in")))
sketch14.addConstraint(Sketcher.Constraint("DistanceY", 1, 3, -1, 1, Q("0.1245 in")))
pocket12 = body.newObject("PartDesign::Pocket", "Pocket011")
pocket12.Profile = sketch14
pocket12.Type = "UpToFirst"
pocket12.Reversed = True

doc.recompute()
